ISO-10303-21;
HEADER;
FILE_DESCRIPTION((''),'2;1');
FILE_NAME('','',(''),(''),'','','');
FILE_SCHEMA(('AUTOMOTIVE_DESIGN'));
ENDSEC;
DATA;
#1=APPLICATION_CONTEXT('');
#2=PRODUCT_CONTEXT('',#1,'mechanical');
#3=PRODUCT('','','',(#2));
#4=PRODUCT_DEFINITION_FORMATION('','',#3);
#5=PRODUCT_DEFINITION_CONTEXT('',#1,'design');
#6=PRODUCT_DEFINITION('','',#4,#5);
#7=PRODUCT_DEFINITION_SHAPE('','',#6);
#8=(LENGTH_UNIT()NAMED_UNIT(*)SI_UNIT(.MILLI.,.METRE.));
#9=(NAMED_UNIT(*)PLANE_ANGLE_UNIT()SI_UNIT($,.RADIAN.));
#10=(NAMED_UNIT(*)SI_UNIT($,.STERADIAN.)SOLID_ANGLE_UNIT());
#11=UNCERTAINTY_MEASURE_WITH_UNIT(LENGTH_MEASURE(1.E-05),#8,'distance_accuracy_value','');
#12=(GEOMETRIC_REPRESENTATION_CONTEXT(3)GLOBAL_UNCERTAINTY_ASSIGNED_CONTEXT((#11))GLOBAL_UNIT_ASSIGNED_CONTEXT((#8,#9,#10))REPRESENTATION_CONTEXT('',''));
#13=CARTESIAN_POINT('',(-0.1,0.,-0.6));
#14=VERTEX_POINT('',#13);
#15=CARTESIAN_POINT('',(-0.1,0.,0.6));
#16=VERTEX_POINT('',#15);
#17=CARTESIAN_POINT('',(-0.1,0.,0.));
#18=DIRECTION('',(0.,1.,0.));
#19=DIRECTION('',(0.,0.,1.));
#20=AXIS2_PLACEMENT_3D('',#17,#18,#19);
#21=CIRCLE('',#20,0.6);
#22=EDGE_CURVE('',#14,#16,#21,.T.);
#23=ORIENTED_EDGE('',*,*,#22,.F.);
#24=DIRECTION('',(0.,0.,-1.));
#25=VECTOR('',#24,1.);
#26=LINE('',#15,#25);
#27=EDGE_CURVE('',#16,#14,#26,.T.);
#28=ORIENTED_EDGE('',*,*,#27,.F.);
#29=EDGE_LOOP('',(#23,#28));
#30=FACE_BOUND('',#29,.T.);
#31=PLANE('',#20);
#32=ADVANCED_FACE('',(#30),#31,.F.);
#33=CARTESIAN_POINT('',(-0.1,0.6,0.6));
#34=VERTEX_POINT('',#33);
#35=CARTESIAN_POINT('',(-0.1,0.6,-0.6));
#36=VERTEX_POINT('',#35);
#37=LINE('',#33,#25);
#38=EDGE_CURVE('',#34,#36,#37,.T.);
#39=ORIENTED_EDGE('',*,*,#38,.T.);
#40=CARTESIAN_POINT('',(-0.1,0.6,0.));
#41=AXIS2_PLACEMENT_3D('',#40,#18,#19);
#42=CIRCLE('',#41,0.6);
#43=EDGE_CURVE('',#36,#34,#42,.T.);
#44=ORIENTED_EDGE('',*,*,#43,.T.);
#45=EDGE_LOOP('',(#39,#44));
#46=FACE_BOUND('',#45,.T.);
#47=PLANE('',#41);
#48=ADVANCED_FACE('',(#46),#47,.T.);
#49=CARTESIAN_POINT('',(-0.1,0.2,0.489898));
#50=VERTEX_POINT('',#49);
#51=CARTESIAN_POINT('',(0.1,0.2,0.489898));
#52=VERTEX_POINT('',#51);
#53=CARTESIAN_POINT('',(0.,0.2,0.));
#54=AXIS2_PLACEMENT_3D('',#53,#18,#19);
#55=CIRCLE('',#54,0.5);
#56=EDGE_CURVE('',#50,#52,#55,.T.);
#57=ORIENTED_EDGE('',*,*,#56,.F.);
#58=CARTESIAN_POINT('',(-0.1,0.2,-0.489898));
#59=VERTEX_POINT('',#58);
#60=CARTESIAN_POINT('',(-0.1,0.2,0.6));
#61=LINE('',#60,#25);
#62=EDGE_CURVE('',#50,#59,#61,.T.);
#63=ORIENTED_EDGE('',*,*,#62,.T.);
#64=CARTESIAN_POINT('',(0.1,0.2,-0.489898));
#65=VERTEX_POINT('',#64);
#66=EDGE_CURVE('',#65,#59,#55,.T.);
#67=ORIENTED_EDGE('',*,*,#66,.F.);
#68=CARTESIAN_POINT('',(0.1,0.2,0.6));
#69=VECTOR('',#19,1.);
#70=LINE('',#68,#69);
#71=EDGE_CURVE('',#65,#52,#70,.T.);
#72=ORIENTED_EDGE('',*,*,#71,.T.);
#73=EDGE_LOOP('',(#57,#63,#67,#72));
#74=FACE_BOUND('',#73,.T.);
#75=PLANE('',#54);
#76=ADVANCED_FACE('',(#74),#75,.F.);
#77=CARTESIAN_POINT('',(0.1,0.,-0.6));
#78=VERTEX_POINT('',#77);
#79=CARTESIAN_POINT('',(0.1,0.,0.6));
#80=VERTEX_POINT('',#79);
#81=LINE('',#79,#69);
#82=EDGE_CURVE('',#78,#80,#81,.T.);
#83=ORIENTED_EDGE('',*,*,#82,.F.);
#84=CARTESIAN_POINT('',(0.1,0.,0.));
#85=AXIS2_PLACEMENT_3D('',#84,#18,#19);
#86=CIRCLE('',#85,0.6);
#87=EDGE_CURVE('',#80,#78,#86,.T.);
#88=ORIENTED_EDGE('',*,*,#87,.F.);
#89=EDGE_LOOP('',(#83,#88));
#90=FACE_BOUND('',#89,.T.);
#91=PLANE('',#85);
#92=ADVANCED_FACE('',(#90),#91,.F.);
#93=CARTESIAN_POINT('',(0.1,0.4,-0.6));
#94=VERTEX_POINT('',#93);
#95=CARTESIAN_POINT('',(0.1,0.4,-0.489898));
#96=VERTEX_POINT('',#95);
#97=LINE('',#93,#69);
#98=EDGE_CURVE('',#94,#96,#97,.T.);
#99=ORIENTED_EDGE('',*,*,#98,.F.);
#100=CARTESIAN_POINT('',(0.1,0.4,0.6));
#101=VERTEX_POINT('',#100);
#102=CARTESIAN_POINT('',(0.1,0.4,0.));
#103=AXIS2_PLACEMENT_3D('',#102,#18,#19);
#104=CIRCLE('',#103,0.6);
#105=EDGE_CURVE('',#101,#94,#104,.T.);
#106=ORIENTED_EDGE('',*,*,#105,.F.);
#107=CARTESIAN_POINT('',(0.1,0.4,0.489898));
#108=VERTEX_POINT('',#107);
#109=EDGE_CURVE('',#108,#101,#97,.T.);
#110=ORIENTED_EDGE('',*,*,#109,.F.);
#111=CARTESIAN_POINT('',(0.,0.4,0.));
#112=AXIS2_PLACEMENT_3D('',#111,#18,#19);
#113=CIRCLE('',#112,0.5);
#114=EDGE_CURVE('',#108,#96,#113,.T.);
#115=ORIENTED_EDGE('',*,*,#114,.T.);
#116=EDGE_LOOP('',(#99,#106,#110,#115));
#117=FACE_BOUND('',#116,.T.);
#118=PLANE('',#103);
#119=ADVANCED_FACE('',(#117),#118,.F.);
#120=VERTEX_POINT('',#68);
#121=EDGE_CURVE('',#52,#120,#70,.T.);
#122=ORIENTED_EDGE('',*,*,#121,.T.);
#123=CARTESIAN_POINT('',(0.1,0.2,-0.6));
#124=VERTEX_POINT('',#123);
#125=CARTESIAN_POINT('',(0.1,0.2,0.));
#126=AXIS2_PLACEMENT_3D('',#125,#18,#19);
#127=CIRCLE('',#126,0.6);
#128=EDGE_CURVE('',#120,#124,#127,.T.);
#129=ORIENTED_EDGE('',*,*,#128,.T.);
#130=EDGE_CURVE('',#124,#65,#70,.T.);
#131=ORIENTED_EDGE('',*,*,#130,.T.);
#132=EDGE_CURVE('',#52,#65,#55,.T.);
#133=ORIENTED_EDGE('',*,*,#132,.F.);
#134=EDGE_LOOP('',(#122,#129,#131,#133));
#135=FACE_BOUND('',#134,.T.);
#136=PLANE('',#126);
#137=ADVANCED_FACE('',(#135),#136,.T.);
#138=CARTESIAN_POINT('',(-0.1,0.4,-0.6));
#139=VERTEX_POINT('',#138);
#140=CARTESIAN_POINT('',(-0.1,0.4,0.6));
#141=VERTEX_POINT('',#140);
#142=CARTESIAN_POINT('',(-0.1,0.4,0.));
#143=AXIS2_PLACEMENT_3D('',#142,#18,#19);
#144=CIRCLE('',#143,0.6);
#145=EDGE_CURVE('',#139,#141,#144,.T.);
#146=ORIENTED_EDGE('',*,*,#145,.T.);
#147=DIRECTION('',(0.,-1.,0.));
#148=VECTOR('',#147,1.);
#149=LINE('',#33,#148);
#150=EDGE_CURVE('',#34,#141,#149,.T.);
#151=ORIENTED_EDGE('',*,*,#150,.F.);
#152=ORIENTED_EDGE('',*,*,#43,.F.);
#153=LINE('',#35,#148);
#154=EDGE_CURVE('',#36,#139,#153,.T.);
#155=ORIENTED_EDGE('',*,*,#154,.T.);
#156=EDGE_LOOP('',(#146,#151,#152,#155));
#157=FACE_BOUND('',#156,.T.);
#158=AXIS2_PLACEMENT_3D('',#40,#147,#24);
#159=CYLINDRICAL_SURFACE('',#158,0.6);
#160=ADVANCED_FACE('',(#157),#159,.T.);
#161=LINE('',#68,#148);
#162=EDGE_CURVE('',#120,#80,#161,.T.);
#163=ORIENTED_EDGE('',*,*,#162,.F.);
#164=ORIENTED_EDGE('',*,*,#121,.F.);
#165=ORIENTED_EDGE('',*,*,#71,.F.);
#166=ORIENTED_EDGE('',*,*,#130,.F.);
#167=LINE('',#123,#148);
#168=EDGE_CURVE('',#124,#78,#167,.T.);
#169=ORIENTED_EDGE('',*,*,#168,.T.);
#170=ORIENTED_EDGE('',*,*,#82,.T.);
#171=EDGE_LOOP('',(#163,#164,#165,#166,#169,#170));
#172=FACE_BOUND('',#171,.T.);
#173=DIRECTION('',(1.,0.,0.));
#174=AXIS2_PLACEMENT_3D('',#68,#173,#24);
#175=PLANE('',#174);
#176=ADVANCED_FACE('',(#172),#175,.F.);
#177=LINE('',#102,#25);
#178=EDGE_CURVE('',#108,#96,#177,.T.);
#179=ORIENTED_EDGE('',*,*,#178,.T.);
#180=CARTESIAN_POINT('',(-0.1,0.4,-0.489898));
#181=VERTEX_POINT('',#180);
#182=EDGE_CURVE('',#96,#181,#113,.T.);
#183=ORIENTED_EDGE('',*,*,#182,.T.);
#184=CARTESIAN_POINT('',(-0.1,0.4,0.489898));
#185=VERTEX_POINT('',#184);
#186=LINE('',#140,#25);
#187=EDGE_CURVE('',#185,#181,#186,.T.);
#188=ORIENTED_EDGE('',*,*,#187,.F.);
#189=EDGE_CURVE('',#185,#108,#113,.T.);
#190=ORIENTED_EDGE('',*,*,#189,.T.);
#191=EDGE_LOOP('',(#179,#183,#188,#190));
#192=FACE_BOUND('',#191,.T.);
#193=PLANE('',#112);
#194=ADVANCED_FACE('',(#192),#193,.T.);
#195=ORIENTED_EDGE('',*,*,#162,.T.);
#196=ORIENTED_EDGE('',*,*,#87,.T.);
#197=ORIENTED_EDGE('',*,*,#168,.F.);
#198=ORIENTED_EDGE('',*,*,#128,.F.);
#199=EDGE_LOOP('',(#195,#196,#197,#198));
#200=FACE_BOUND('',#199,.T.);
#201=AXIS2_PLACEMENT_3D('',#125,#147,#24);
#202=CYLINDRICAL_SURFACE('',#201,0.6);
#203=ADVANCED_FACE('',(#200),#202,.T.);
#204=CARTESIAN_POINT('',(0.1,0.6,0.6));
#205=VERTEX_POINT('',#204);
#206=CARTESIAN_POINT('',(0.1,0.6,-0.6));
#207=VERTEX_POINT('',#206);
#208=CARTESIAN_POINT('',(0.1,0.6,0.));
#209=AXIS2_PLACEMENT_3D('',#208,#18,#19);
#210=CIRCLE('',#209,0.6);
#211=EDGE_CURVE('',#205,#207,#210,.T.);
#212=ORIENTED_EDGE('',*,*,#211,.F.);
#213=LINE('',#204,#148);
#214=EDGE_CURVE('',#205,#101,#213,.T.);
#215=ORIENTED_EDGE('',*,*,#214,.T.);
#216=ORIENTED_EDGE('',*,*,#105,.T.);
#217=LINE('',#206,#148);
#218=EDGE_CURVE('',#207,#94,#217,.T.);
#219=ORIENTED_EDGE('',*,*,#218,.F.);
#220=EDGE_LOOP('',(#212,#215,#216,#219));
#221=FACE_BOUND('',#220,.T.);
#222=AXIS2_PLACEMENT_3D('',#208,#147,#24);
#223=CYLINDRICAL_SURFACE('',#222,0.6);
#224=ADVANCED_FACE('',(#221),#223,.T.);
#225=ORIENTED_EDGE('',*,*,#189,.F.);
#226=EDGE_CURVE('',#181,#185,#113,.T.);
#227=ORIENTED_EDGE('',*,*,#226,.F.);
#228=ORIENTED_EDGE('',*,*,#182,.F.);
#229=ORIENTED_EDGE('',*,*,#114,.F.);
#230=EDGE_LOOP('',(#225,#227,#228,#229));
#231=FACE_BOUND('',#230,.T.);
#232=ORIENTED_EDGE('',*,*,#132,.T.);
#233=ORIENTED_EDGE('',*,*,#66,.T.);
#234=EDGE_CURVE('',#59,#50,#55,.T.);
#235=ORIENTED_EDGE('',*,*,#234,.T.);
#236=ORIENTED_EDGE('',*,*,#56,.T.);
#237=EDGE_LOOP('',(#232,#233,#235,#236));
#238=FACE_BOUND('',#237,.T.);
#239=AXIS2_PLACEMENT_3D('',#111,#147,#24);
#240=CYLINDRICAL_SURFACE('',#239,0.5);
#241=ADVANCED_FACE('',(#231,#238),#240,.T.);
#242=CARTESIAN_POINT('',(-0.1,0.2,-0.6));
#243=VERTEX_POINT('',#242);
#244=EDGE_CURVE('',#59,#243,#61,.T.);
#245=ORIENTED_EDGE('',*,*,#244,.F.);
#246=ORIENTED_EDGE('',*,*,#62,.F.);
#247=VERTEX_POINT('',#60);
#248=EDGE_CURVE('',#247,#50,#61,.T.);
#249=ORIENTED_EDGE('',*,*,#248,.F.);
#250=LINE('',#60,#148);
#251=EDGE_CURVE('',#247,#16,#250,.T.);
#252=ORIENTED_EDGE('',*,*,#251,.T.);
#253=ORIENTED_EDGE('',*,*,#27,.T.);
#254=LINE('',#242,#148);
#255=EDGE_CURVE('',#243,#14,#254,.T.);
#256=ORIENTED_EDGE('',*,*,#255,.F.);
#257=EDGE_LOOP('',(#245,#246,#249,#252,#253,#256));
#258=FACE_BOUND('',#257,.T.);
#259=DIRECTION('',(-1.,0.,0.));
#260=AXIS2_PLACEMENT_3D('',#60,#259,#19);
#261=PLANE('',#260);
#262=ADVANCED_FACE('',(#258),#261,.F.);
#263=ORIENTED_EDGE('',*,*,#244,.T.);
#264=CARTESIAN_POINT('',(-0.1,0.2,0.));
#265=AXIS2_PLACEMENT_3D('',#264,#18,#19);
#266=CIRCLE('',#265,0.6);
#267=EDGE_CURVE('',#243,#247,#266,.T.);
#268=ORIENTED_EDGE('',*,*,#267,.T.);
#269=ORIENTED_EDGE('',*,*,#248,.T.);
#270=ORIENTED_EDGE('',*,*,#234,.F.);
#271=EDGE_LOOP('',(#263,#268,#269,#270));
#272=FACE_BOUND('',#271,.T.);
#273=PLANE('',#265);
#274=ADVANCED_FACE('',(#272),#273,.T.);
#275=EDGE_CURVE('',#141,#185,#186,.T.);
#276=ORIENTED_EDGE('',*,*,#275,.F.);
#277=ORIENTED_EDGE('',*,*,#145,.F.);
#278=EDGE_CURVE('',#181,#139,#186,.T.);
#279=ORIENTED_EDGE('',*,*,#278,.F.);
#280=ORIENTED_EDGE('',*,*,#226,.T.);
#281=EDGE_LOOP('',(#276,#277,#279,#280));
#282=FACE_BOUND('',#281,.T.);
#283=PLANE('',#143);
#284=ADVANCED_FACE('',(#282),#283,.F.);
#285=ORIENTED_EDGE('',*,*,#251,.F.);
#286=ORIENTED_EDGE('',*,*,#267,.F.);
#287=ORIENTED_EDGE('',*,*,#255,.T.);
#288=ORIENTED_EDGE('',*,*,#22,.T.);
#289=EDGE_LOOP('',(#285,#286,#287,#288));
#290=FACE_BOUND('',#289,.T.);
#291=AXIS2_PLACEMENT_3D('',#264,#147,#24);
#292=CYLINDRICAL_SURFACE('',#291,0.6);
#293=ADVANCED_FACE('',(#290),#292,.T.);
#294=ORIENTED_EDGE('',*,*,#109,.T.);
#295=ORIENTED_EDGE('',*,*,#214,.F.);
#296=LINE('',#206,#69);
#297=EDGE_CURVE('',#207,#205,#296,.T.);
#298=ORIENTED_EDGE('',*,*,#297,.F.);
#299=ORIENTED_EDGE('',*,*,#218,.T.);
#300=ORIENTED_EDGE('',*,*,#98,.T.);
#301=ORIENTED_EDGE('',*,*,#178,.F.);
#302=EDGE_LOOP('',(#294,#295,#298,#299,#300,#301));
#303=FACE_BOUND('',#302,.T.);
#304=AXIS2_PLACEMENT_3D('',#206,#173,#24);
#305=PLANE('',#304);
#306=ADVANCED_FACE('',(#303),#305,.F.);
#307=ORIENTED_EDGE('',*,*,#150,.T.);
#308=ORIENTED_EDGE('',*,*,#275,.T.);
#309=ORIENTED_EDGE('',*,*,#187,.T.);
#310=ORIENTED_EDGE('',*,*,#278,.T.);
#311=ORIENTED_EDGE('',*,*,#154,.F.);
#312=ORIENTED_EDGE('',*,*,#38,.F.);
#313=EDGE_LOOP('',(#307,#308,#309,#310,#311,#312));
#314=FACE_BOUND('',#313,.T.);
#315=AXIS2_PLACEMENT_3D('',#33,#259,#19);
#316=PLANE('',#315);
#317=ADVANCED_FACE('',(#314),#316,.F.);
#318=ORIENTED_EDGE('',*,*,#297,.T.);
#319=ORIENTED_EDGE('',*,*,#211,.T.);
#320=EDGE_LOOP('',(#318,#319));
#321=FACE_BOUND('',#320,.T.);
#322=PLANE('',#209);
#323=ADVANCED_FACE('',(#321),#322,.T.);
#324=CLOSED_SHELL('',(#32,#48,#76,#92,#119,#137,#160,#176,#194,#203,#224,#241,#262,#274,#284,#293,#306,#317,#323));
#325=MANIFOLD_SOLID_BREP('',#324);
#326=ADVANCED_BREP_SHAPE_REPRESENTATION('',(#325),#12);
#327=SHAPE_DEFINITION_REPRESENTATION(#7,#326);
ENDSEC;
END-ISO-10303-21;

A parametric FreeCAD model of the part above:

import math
import FreeCAD as App
import Part
import Sketcher

V = App.Vector
Q = App.Units.Quantity

doc = App.newDocument("Part")
params = doc.addObject("Spreadsheet::Sheet", "Params")
for row, (alias, value) in enumerate([
    ("sketch1_radius", "0.6 mm"),
    ("pad1_length", "0.2 mm"),
    ("sketch2_radius", "0.6 mm"),
    ("pad2_length", "0.2 mm"),
    ("sketch3_diameter", "1 mm"),
    ("pad3_length", "0.2 mm"),
    ("sketch4_radius", "0.6 mm"),
    ("pad4_length", "0.2 mm"),
], start=1):
    params.set(f"A{row}", alias)
    params.set(f"B{row}", "=" + value)
    params.setAlias(f"B{row}", alias)

body = doc.addObject("PartDesign::Body", "Body")

# Sketch on XZ plane
sketch1 = doc.addObject("Sketcher::SketchObject", "Sketch")
body.addObject(sketch1)
sketch1.AttachmentSupport = (doc.XZ_Plane, [""])
sketch1.MapMode = "FlatFace"
sketch1.addGeometry([
    Part.LineSegment(V(0.1, -0.6, 0), V(0.1, 0.6, 0)),
    Part.ArcOfCircle(Part.Circle(V(0.1, 0, 0), V(0, 0, 1), 0.6), math.radians(-90), math.radians(90)),
], False)
sketch1.addConstraint([
    Sketcher.Constraint("Coincident", 0, 1, 1, 1),
    Sketcher.Constraint("Coincident", 1, 2, 0, 2),
    Sketcher.Constraint("Vertical", 0),
    Sketcher.Constraint("PointOnObject", 1, 3, -1),
    Sketcher.Constraint("Vertical", 1, 3, 0, 1),
    Sketcher.Constraint("Radius", 1, Q("0.6 mm")),
    Sketcher.Constraint("DistanceX", -1, 1, 1, 3, Q("0.1 mm")),
])
sketch1.setExpression("Constraints[5]", "Params.sketch1_radius")
pad1 = doc.addObject("PartDesign::Pad", "Pad")
body.addObject(pad1)
pad1.Profile = sketch1
pad1.setExpression("Length", "Params.pad1_length")
pad1.Reversed = True
body2 = doc.addObject("PartDesign::Body", "Body001")

# Sketch on XZ plane
sketch2 = doc.addObject("Sketcher::SketchObject", "Sketch001")
body2.addObject(sketch2)
sketch2.AttachmentSupport = (doc.getObject("XZ_Plane001"), [""])
sketch2.MapMode = "FlatFace"
sketch2.addGeometry([
    Part.LineSegment(V(-0.1, 0.6, 0), V(-0.1, -0.6, 0)),
    Part.ArcOfCircle(Part.Circle(V(-0.1, 0, 0), V(0, 0, 1), 0.6), math.radians(90), math.radians(270)),
], False)
sketch2.addConstraint([
    Sketcher.Constraint("Coincident", 0, 1, 1, 1),
    Sketcher.Constraint("Coincident", 1, 2, 0, 2),
    Sketcher.Constraint("Vertical", 0),
    Sketcher.Constraint("PointOnObject", 1, 3, -1),
    Sketcher.Constraint("Vertical", 1, 3, 0, 1),
    Sketcher.Constraint("Radius", 1, Q("0.6 mm")),
    Sketcher.Constraint("DistanceX", 1, 3, -1, 1, Q("0.1 mm")),
])
sketch2.setExpression("Constraints[5]", "Params.sketch2_radius")
pad2 = doc.addObject("PartDesign::Pad", "Pad001")
body2.addObject(pad2)
pad2.Profile = sketch2
pad2.setExpression("Length", "Params.pad2_length")
pad2.Reversed = True
body.AllowCompound = True
doc.recompute()

boolean = doc.addObject("PartDesign::Boolean", "Boolean")
body.addObject(boolean)
boolean.Type = "Fuse"
boolean.addObjects([body2])

# Sketch on XZ plane
sketch3 = doc.addObject("Sketcher::SketchObject", "Sketch002")
body.addObject(sketch3)
sketch3.AttachmentSupport = (doc.XZ_Plane, [""])
sketch3.MapMode = "FlatFace"
sketch3.AttachmentOffset = App.Placement(V(0, 0, -0.2), App.Rotation())
sketch3.addGeometry(Part.Circle(V(0, 0, 0), V(0, 0, 1), 0.5), False)
sketch3.addConstraint([
    Sketcher.Constraint("Coincident", 0, 3, -1, 1),
    Sketcher.Constraint("Diameter", 0, Q("1 mm")),
])
sketch3.setExpression("Constraints[1]", "Params.sketch3_diameter")
pad3 = doc.addObject("PartDesign::Pad", "Pad002")
body.addObject(pad3)
pad3.Profile = sketch3
pad3.setExpression("Length", "Params.pad3_length")
pad3.Reversed = True

# Sketch on XZ plane
sketch4 = doc.addObject("Sketcher::SketchObject", "Sketch003")
body.addObject(sketch4)
sketch4.AttachmentSupport = (doc.XZ_Plane, [""])
sketch4.MapMode = "FlatFace"
sketch4.AttachmentOffset = App.Placement(V(0, 0, -0.4), App.Rotation())
sketch4.addGeometry([
    Part.LineSegment(V(-0.1, 0.6, 0), V(-0.1, -0.6, 0)),
    Part.ArcOfCircle(Part.Circle(V(-0.1, 0, 0), V(0, 0, 1), 0.6), math.radians(90), math.radians(270)),
    Part.LineSegment(V(0.1, -0.6, 0), V(0.1, 0.6, 0)),
    Part.ArcOfCircle(Part.Circle(V(0.1, 0, 0), V(0, 0, 1), 0.6), math.radians(-90), math.radians(90)),
], False)
sketch4.addConstraint([
    Sketcher.Constraint("Coincident", 0, 1, 1, 1),
    Sketcher.Constraint("Coincident", 1, 2, 0, 2),
    Sketcher.Constraint("Coincident", 2, 1, 3, 1),
    Sketcher.Constraint("Coincident", 3, 2, 2, 2),
    Sketcher.Constraint("Vertical", 0),
    Sketcher.Constraint("Vertical", 2),
    Sketcher.Constraint("Equal", 1, 3),
    Sketcher.Constraint("Symmetric", 1, 3, 3, 3, -1, 1),
    Sketcher.Constraint("Symmetric", 1, 2, 2, 1, -2),
    Sketcher.Constraint("Vertical", 1, 3, 0, 1),
    Sketcher.Constraint("Radius", 1, Q("0.6 mm")),
    Sketcher.Constraint("DistanceX", 1, 3, -1, 1, Q("0.1 mm")),
])
sketch4.setExpression("Constraints[10]", "Params.sketch4_radius")
pad4 = doc.addObject("PartDesign::Pad", "Pad003")
body.addObject(pad4)
pad4.Profile = sketch4
pad4.setExpression("Length", "Params.pad4_length")
pad4.Reversed = True

doc.recompute()
